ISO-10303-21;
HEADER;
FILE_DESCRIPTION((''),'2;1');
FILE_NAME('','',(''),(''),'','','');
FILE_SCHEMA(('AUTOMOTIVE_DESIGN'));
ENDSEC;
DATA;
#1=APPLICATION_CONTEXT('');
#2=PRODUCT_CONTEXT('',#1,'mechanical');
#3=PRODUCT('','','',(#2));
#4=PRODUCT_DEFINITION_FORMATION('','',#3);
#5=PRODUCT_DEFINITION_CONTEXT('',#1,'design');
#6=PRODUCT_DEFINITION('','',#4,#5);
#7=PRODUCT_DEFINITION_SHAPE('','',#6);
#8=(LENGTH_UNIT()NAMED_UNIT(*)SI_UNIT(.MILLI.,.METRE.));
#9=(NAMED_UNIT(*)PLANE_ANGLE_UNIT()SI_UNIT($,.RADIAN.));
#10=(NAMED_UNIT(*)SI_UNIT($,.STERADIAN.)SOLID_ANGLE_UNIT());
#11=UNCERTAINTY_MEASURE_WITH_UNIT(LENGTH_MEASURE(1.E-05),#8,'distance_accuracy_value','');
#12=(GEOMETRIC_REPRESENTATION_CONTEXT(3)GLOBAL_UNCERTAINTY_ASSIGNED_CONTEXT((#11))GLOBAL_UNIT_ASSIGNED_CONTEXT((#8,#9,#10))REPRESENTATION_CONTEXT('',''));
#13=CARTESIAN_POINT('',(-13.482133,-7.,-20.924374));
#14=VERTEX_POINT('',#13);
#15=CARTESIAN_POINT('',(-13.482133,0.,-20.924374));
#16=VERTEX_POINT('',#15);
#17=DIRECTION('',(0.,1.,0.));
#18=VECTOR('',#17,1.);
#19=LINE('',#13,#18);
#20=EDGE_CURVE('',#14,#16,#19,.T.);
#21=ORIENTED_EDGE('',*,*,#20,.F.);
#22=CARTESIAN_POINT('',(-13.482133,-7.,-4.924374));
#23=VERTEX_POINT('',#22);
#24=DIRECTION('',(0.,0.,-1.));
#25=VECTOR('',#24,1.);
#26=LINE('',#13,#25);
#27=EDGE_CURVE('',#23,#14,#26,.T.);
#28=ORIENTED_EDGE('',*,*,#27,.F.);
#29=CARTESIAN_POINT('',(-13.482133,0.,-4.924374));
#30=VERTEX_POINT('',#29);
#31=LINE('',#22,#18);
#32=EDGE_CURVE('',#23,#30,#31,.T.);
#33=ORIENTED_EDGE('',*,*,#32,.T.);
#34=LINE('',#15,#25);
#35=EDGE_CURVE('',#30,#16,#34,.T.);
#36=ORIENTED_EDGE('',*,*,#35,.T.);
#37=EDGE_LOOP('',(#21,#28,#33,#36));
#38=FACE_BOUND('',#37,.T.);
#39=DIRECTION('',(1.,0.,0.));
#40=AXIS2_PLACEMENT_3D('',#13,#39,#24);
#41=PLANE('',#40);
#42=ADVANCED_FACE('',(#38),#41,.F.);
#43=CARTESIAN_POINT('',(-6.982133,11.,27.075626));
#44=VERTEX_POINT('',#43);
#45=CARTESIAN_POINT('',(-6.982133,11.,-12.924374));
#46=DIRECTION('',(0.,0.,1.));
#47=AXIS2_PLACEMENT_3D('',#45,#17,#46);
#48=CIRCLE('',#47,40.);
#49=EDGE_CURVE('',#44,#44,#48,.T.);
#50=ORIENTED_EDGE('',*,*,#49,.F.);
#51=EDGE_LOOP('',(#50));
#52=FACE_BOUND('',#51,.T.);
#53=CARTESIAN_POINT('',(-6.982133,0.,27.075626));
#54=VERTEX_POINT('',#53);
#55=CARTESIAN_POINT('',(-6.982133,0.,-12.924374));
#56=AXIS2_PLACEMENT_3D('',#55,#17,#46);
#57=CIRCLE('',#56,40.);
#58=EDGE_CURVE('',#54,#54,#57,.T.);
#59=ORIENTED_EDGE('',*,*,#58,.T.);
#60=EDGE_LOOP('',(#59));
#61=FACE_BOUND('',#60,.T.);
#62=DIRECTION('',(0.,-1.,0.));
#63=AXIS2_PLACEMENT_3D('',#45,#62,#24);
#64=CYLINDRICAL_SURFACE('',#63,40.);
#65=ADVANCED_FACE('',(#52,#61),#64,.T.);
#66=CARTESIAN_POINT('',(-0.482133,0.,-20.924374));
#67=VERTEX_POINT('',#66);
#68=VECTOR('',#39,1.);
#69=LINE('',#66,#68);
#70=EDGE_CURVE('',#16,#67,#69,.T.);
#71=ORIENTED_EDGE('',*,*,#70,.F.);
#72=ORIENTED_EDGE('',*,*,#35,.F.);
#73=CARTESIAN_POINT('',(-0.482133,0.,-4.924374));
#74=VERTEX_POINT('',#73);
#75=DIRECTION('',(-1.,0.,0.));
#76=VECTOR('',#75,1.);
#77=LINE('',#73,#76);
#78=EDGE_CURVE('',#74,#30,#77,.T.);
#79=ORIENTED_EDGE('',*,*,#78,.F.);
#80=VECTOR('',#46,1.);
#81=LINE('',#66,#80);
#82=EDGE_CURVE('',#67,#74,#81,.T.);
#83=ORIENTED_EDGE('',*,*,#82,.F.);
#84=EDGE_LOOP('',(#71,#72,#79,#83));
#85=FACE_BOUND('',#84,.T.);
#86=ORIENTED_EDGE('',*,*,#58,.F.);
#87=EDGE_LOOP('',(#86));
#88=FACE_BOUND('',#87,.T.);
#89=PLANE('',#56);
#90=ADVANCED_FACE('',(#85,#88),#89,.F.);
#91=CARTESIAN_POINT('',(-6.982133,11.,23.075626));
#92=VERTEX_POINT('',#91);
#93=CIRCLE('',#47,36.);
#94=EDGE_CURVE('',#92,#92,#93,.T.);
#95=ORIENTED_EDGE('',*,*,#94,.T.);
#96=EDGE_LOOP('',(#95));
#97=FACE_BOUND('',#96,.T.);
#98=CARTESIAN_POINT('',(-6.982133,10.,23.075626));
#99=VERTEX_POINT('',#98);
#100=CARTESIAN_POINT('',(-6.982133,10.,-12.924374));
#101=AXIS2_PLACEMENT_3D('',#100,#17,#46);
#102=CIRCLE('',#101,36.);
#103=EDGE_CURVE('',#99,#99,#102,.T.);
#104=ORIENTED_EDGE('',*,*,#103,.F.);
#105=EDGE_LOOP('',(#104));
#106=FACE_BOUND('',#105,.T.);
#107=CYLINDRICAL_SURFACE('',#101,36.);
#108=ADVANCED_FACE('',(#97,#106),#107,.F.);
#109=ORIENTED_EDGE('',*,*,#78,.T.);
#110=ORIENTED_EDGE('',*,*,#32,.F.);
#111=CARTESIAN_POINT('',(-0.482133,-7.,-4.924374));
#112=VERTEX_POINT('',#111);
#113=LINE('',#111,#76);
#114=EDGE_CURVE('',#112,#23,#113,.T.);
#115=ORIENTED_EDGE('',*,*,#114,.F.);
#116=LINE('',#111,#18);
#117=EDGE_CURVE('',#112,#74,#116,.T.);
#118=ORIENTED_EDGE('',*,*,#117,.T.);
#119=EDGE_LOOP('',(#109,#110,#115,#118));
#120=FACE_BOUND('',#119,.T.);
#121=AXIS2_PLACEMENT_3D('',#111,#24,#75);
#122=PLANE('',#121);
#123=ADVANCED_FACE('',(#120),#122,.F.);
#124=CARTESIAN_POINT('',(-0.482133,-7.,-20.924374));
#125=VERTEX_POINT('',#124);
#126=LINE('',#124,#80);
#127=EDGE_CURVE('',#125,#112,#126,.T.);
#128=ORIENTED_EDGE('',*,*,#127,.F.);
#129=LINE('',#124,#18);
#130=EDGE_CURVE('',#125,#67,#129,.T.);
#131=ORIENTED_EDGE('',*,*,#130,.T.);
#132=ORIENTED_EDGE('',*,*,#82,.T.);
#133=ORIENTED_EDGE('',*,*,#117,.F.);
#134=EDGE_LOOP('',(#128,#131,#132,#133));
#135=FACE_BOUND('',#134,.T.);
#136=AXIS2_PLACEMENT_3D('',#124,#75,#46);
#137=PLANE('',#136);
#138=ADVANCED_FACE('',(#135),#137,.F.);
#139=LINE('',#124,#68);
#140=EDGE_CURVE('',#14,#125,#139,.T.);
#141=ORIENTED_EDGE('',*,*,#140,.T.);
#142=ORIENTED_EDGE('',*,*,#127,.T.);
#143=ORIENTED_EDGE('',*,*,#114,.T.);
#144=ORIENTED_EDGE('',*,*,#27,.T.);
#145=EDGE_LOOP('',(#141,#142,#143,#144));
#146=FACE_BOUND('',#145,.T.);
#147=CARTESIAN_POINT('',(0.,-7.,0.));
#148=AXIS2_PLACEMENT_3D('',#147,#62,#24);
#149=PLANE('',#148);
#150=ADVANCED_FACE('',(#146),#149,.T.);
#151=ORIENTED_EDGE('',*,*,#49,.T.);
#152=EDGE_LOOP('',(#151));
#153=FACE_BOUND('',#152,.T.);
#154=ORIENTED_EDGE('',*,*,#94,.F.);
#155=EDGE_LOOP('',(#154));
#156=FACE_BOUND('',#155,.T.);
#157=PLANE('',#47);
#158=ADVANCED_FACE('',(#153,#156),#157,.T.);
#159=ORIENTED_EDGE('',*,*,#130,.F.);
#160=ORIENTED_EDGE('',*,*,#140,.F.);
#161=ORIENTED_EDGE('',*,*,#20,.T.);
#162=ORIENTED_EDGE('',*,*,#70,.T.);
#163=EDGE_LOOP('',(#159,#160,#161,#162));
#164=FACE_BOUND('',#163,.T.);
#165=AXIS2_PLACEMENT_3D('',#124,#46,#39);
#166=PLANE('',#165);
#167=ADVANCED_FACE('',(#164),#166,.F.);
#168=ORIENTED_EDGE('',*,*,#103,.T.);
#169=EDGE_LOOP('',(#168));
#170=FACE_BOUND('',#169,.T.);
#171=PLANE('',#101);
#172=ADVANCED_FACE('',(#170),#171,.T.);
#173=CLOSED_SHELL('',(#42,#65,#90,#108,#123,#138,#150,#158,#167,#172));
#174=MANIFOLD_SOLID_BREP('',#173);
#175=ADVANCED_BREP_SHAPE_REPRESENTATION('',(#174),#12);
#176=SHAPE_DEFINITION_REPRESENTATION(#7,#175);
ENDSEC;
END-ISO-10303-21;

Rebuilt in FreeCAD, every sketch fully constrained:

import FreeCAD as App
import Part
import Sketcher

doc = App.newDocument("Part")
params = doc.addObject("Spreadsheet::Sheet", "Params")
for row, (alias, value) in enumerate([
    ("sketch1_diameter", "80 mm"),
    ("pad1_length", "11 mm"),
    ("sketch2_diameter", "72 mm"),
    ("pocket1_length", "1 mm"),
    ("sketch3_width", "13 mm"),
    ("sketch3_height", "16 mm"),
    ("pad2_length", "7 mm"),
], start=1):
    params.set(f"A{row}", alias)
    params.set(f"B{row}", "=" + value)
    params.setAlias(f"B{row}", alias)

body = doc.addObject("PartDesign::Body", "Body")

# Sketch on XZ plane
sketch1 = doc.addObject("Sketcher::SketchObject", "Sketch")
body.addObject(sketch1)
sketch1.AttachmentSupport = (doc.XZ_Plane, [""])
sketch1.MapMode = "FlatFace"
sketch1.addGeometry(Part.Circle(App.Vector(-6.982133, -12.924374, 0), App.Vector(0, 0, 1), 40), False)
sketch1.addConstraint(Sketcher.Constraint("Diameter", 0, 80.0))
sketch1.addConstraint(Sketcher.Constraint("DistanceX", 0, 3, -1, 1, 6.982133))
sketch1.addConstraint(Sketcher.Constraint("DistanceY", 0, 3, -1, 1, 12.924374))
sketch1.setExpression("Constraints[0]", "Params.sketch1_diameter")
pad1 = doc.addObject("PartDesign::Pad", "Pad")
body.addObject(pad1)
pad1.Profile = sketch1
pad1.setExpression("Length", "Params.pad1_length")
pad1.Reversed = True

# Sketch on XZ plane
sketch2 = doc.addObject("Sketcher::SketchObject", "Sketch001")
body.addObject(sketch2)
sketch2.AttachmentSupport = (doc.XZ_Plane, [""])
sketch2.MapMode = "FlatFace"
sketch2.AttachmentOffset = App.Placement(App.Vector(0, 0, -11), App.Rotation())
sketch2.addGeometry(Part.Circle(App.Vector(-6.982133, -12.924374, 0), App.Vector(0, 0, 1), 36), False)
sketch2.addConstraint(Sketcher.Constraint("Diameter", 0, 72.0))
sketch2.addConstraint(Sketcher.Constraint("DistanceX", 0, 3, -1, 1, 6.982133))
sketch2.addConstraint(Sketcher.Constraint("DistanceY", 0, 3, -1, 1, 12.924374))
sketch2.setExpression("Constraints[0]", "Params.sketch2_diameter")
pocket1 = doc.addObject("PartDesign::Pocket", "Pocket")
body.addObject(pocket1)
pocket1.Profile = sketch2
pocket1.setExpression("Length", "Params.pocket1_length")
pocket1.Reversed = True

# Sketch on XZ plane
sketch3 = doc.addObject("Sketcher::SketchObject", "Sketch002")
body.addObject(sketch3)
sketch3.AttachmentSupport = (doc.XZ_Plane, [""])
sketch3.MapMode = "FlatFace"
sketch3.addGeometry(Part.LineSegment(App.Vector(-13.482133, -4.924374, 0), App.Vector(-13.482133, -20.924374, 0)), False)
sketch3.addGeometry(Part.LineSegment(App.Vector(-13.482133, -20.924374, 0), App.Vector(-0.482133, -20.924374, 0)), False)
sketch3.addGeometry(Part.LineSegment(App.Vector(-0.482133, -20.924374, 0), App.Vector(-0.482133, -4.924374, 0)), False)
sketch3.addGeometry(Part.LineSegment(App.Vector(-0.482133, -4.924374, 0), App.Vector(-13.482133, -4.924374, 0)), False)
sketch3.addConstraint(Sketcher.Constraint("Coincident", 0, 2, 1, 1))
sketch3.addConstraint(Sketcher.Constraint("Coincident", 1, 2, 2, 1))
sketch3.addConstraint(Sketcher.Constraint("Coincident", 2, 2, 3, 1))
sketch3.addConstraint(Sketcher.Constraint("Coincident", 3, 2, 0, 1))
sketch3.addConstraint(Sketcher.Constraint("Vertical", 0))
sketch3.addConstraint(Sketcher.Constraint("Horizontal", 1))
sketch3.addConstraint(Sketcher.Constraint("Vertical", 2))
sketch3.addConstraint(Sketcher.Constraint("Horizontal", 3))
sketch3.addConstraint(Sketcher.Constraint("DistanceX", 1, 1, 1, 2, 13.0))
sketch3.addConstraint(Sketcher.Constraint("DistanceY", 0, 2, 0, 1, 16.0))
sketch3.addConstraint(Sketcher.Constraint("DistanceX", 0, 2, -1, 1, 13.482133))
sketch3.addConstraint(Sketcher.Constraint("DistanceY", 0, 2, -1, 1, 20.924374))
sketch3.setExpression("Constraints[8]", "Params.sketch3_width")
sketch3.setExpression("Constraints[9]", "Params.sketch3_height")
pad2 = doc.addObject("PartDesign::Pad", "Pad001")
body.addObject(pad2)
pad2.Profile = sketch3
pad2.setExpression("Length", "Params.pad2_length")

doc.recompute()
